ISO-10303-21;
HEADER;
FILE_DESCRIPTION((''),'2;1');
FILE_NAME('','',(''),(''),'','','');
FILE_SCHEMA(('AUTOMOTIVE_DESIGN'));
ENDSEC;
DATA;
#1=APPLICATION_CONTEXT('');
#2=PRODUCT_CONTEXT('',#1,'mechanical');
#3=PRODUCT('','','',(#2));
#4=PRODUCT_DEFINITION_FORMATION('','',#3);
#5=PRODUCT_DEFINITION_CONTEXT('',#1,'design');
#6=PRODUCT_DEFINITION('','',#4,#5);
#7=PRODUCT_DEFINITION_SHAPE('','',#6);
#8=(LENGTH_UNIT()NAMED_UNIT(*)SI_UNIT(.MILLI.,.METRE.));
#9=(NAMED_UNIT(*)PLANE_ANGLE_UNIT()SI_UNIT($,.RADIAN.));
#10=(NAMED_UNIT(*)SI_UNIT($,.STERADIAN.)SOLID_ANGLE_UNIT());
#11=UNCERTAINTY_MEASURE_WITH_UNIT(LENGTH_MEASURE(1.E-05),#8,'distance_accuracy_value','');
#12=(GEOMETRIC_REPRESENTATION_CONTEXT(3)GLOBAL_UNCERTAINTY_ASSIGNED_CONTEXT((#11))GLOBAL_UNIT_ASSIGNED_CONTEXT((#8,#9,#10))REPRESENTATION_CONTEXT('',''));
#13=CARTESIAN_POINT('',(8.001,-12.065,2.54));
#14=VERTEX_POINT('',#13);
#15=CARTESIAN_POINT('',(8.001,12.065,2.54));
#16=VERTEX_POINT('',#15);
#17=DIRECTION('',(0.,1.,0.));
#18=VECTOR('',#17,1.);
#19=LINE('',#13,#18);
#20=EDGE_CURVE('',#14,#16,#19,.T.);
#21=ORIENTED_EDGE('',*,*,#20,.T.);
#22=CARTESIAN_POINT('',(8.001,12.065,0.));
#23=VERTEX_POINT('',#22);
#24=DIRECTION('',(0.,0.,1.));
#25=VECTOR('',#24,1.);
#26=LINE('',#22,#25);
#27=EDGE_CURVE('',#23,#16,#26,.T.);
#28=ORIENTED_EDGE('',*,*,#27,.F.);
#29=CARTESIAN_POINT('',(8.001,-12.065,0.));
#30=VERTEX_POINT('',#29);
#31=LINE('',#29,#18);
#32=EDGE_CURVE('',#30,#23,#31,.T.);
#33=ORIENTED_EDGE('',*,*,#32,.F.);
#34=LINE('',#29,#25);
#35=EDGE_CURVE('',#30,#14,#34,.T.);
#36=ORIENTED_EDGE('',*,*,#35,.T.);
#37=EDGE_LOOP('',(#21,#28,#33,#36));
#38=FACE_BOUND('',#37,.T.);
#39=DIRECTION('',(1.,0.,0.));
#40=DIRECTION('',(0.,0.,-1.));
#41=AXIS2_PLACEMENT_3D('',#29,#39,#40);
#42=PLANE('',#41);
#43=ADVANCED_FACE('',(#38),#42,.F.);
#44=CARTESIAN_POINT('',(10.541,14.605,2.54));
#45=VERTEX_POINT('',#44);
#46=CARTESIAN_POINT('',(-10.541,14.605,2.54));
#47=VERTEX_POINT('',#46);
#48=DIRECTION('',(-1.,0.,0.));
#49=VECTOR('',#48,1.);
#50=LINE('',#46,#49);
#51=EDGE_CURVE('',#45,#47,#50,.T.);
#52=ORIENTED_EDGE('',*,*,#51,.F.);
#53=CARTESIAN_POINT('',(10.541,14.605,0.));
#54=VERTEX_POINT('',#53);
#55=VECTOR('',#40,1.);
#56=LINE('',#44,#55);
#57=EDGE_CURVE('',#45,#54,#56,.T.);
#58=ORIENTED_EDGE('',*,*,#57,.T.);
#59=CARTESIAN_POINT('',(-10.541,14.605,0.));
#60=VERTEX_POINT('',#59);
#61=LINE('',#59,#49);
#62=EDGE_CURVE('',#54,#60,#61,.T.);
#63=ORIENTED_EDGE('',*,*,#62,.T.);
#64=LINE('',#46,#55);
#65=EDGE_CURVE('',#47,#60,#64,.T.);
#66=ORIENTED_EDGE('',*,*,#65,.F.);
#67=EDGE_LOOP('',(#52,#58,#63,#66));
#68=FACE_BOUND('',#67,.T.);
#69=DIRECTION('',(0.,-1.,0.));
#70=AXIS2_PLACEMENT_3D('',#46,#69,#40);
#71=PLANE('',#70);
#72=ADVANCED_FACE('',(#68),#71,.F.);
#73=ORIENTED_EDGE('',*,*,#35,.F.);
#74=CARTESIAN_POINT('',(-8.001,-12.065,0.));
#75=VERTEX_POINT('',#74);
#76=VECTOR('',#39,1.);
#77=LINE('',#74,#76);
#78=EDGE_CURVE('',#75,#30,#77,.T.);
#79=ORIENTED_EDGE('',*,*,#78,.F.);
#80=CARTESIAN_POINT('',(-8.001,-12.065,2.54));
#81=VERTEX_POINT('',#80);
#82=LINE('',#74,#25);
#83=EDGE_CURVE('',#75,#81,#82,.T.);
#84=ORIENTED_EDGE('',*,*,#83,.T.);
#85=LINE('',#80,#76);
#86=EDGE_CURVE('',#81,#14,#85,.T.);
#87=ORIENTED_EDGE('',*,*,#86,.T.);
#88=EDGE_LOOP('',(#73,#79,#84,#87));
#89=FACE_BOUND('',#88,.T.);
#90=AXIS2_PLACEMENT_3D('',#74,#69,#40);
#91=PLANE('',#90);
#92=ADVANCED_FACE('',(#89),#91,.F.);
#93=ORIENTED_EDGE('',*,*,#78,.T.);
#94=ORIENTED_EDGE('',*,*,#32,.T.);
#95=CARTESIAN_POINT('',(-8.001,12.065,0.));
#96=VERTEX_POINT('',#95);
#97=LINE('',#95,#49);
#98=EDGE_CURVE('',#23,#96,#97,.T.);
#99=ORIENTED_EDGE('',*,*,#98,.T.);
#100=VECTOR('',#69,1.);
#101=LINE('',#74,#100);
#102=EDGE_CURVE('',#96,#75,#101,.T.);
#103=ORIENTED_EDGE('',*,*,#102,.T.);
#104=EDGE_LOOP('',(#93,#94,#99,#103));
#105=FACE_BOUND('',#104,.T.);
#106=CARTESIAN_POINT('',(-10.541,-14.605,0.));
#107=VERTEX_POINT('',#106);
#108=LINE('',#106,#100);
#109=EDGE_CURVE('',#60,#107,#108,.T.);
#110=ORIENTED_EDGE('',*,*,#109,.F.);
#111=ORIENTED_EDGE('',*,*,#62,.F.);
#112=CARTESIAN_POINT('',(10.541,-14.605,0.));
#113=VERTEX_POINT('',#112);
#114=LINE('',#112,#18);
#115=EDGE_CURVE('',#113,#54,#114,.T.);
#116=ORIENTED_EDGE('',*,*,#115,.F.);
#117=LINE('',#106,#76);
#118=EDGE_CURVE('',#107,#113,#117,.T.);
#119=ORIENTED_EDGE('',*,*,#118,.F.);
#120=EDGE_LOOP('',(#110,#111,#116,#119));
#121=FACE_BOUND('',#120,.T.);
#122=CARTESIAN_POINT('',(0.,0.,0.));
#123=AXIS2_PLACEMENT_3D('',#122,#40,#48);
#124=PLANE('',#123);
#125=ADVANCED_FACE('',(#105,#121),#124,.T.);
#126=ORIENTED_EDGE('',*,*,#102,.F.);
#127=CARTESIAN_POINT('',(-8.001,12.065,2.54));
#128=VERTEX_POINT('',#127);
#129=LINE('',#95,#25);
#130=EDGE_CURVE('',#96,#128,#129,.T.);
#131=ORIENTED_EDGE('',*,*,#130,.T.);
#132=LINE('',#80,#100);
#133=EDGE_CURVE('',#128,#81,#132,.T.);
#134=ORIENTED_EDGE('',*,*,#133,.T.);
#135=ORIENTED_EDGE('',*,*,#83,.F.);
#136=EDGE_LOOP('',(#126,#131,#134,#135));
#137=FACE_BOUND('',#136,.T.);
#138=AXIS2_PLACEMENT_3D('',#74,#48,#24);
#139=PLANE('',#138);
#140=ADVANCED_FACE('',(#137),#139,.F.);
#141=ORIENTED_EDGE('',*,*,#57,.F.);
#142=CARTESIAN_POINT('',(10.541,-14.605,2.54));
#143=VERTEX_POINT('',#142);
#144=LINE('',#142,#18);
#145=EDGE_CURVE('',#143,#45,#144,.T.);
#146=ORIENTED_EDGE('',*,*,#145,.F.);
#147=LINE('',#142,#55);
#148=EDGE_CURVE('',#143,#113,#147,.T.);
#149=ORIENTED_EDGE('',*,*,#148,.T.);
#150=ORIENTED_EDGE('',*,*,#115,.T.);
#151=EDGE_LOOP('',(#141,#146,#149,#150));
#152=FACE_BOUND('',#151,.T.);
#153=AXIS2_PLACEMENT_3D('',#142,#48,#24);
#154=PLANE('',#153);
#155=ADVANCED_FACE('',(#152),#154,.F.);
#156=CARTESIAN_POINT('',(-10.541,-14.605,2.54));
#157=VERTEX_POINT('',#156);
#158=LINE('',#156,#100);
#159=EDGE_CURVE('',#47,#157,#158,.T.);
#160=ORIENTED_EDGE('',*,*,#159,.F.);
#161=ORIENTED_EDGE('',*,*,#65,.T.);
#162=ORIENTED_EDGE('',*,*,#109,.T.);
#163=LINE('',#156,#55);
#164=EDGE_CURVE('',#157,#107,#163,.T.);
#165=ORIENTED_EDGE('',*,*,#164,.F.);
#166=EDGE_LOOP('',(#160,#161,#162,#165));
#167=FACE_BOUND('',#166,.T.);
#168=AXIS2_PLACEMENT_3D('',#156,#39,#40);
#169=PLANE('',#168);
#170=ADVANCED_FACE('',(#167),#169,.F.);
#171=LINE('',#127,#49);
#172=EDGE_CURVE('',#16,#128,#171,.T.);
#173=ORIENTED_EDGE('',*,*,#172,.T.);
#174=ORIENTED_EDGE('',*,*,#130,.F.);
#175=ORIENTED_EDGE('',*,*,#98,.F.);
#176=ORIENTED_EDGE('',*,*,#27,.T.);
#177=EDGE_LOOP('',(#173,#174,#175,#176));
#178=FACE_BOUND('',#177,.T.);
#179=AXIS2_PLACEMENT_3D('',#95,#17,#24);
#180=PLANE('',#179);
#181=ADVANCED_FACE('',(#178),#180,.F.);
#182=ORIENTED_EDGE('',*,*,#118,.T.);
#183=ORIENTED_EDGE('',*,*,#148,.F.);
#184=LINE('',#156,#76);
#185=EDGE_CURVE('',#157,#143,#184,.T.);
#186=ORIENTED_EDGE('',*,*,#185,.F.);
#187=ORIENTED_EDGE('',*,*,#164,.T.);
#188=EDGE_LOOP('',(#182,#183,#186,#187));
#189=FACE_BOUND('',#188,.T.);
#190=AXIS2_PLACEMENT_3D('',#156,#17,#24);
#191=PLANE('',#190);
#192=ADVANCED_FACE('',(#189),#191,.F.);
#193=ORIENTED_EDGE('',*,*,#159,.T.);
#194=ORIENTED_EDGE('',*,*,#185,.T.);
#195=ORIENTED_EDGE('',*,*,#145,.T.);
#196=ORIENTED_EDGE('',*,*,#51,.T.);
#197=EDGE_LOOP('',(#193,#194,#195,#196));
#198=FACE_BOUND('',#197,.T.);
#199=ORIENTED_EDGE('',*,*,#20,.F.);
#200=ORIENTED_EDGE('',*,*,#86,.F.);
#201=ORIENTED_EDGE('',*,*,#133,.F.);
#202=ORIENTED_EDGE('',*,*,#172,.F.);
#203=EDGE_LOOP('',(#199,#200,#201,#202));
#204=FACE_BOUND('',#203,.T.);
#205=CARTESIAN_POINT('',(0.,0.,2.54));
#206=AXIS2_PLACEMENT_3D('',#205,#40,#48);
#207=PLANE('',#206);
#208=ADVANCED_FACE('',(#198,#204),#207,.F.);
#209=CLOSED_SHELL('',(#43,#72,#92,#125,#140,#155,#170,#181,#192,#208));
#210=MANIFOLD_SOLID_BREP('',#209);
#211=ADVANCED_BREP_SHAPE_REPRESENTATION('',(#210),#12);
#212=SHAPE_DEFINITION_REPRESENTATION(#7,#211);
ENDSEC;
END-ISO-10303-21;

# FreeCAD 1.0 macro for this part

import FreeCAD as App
import Part
import Sketcher

V = App.Vector
Q = App.Units.Quantity


def add_polygon(sketch, points):
    """Adds a closed chain of lines whose ends are joined by coincident constraints."""
    first, n = sketch.GeometryCount, len(points)
    for a, b in zip(points, points[1:] + points[:1]):
        sketch.addGeometry(Part.LineSegment(App.Vector(*a, 0), App.Vector(*b, 0)), False)
    for i in range(n):
        sketch.addConstraint(Sketcher.Constraint("Coincident", first + i, 2, first + (i + 1) % n, 1))

doc = App.newDocument("Part")
body = doc.addObject("PartDesign::Body", "Body")

sketch1 = doc.addObject("Sketcher::SketchObject", "Sketch")
body.addObject(sketch1)
sketch1.AttachmentSupport = (doc.XY_Plane, [""])
sketch1.MapMode = "FlatFace"
add_polygon(sketch1, [(-10.541, 14.605), (-10.541, -14.605), (10.541, -14.605), (10.541, 14.605)])
sketch1.addConstraint([
    Sketcher.Constraint("Vertical", 0),
    Sketcher.Constraint("Horizontal", 1),
    Sketcher.Constraint("Vertical", 2),
    Sketcher.Constraint("Horizontal", 3),
    Sketcher.Constraint("Symmetric", 0, 2, 2, 2, -1, 1),
    Sketcher.Constraint("DistanceX", 1, 1, 1, 2, Q("0.83 in")),
    Sketcher.Constraint("DistanceY", 0, 2, 0, 1, Q("1.15 in")),
])
pad1 = doc.addObject("PartDesign::Pad", "Pad")
body.addObject(pad1)
pad1.Profile = sketch1
pad1.Length = Q("0.1 in")

sketch2 = doc.addObject("Sketcher::SketchObject", "Sketch001")
body.addObject(sketch2)
sketch2.AttachmentSupport = (doc.XY_Plane, [""])
sketch2.MapMode = "FlatFace"
sketch2.AttachmentOffset = App.Placement(V(0, 0, 0.1 * 25.4), App.Rotation())
add_polygon(sketch2, [(-8.001, 12.065), (-8.001, -12.065), (8.001, -12.065), (8.001, 12.065)])
sketch2.addConstraint([
    Sketcher.Constraint("Vertical", 0),
    Sketcher.Constraint("Horizontal", 1),
    Sketcher.Constraint("Vertical", 2),
    Sketcher.Constraint("Horizontal", 3),
    Sketcher.Constraint("Symmetric", 0, 2, 2, 2, -1, 1),
    Sketcher.Constraint("DistanceX", 1, 1, 1, 2, Q("0.63 in")),
    Sketcher.Constraint("DistanceY", 0, 2, 0, 1, Q("0.95 in")),
])
pocket1 = doc.addObject("PartDesign::Pocket", "Pocket")
body.addObject(pocket1)
pocket1.Profile = sketch2
pocket1.Type = "ThroughAll"

doc.recompute()
